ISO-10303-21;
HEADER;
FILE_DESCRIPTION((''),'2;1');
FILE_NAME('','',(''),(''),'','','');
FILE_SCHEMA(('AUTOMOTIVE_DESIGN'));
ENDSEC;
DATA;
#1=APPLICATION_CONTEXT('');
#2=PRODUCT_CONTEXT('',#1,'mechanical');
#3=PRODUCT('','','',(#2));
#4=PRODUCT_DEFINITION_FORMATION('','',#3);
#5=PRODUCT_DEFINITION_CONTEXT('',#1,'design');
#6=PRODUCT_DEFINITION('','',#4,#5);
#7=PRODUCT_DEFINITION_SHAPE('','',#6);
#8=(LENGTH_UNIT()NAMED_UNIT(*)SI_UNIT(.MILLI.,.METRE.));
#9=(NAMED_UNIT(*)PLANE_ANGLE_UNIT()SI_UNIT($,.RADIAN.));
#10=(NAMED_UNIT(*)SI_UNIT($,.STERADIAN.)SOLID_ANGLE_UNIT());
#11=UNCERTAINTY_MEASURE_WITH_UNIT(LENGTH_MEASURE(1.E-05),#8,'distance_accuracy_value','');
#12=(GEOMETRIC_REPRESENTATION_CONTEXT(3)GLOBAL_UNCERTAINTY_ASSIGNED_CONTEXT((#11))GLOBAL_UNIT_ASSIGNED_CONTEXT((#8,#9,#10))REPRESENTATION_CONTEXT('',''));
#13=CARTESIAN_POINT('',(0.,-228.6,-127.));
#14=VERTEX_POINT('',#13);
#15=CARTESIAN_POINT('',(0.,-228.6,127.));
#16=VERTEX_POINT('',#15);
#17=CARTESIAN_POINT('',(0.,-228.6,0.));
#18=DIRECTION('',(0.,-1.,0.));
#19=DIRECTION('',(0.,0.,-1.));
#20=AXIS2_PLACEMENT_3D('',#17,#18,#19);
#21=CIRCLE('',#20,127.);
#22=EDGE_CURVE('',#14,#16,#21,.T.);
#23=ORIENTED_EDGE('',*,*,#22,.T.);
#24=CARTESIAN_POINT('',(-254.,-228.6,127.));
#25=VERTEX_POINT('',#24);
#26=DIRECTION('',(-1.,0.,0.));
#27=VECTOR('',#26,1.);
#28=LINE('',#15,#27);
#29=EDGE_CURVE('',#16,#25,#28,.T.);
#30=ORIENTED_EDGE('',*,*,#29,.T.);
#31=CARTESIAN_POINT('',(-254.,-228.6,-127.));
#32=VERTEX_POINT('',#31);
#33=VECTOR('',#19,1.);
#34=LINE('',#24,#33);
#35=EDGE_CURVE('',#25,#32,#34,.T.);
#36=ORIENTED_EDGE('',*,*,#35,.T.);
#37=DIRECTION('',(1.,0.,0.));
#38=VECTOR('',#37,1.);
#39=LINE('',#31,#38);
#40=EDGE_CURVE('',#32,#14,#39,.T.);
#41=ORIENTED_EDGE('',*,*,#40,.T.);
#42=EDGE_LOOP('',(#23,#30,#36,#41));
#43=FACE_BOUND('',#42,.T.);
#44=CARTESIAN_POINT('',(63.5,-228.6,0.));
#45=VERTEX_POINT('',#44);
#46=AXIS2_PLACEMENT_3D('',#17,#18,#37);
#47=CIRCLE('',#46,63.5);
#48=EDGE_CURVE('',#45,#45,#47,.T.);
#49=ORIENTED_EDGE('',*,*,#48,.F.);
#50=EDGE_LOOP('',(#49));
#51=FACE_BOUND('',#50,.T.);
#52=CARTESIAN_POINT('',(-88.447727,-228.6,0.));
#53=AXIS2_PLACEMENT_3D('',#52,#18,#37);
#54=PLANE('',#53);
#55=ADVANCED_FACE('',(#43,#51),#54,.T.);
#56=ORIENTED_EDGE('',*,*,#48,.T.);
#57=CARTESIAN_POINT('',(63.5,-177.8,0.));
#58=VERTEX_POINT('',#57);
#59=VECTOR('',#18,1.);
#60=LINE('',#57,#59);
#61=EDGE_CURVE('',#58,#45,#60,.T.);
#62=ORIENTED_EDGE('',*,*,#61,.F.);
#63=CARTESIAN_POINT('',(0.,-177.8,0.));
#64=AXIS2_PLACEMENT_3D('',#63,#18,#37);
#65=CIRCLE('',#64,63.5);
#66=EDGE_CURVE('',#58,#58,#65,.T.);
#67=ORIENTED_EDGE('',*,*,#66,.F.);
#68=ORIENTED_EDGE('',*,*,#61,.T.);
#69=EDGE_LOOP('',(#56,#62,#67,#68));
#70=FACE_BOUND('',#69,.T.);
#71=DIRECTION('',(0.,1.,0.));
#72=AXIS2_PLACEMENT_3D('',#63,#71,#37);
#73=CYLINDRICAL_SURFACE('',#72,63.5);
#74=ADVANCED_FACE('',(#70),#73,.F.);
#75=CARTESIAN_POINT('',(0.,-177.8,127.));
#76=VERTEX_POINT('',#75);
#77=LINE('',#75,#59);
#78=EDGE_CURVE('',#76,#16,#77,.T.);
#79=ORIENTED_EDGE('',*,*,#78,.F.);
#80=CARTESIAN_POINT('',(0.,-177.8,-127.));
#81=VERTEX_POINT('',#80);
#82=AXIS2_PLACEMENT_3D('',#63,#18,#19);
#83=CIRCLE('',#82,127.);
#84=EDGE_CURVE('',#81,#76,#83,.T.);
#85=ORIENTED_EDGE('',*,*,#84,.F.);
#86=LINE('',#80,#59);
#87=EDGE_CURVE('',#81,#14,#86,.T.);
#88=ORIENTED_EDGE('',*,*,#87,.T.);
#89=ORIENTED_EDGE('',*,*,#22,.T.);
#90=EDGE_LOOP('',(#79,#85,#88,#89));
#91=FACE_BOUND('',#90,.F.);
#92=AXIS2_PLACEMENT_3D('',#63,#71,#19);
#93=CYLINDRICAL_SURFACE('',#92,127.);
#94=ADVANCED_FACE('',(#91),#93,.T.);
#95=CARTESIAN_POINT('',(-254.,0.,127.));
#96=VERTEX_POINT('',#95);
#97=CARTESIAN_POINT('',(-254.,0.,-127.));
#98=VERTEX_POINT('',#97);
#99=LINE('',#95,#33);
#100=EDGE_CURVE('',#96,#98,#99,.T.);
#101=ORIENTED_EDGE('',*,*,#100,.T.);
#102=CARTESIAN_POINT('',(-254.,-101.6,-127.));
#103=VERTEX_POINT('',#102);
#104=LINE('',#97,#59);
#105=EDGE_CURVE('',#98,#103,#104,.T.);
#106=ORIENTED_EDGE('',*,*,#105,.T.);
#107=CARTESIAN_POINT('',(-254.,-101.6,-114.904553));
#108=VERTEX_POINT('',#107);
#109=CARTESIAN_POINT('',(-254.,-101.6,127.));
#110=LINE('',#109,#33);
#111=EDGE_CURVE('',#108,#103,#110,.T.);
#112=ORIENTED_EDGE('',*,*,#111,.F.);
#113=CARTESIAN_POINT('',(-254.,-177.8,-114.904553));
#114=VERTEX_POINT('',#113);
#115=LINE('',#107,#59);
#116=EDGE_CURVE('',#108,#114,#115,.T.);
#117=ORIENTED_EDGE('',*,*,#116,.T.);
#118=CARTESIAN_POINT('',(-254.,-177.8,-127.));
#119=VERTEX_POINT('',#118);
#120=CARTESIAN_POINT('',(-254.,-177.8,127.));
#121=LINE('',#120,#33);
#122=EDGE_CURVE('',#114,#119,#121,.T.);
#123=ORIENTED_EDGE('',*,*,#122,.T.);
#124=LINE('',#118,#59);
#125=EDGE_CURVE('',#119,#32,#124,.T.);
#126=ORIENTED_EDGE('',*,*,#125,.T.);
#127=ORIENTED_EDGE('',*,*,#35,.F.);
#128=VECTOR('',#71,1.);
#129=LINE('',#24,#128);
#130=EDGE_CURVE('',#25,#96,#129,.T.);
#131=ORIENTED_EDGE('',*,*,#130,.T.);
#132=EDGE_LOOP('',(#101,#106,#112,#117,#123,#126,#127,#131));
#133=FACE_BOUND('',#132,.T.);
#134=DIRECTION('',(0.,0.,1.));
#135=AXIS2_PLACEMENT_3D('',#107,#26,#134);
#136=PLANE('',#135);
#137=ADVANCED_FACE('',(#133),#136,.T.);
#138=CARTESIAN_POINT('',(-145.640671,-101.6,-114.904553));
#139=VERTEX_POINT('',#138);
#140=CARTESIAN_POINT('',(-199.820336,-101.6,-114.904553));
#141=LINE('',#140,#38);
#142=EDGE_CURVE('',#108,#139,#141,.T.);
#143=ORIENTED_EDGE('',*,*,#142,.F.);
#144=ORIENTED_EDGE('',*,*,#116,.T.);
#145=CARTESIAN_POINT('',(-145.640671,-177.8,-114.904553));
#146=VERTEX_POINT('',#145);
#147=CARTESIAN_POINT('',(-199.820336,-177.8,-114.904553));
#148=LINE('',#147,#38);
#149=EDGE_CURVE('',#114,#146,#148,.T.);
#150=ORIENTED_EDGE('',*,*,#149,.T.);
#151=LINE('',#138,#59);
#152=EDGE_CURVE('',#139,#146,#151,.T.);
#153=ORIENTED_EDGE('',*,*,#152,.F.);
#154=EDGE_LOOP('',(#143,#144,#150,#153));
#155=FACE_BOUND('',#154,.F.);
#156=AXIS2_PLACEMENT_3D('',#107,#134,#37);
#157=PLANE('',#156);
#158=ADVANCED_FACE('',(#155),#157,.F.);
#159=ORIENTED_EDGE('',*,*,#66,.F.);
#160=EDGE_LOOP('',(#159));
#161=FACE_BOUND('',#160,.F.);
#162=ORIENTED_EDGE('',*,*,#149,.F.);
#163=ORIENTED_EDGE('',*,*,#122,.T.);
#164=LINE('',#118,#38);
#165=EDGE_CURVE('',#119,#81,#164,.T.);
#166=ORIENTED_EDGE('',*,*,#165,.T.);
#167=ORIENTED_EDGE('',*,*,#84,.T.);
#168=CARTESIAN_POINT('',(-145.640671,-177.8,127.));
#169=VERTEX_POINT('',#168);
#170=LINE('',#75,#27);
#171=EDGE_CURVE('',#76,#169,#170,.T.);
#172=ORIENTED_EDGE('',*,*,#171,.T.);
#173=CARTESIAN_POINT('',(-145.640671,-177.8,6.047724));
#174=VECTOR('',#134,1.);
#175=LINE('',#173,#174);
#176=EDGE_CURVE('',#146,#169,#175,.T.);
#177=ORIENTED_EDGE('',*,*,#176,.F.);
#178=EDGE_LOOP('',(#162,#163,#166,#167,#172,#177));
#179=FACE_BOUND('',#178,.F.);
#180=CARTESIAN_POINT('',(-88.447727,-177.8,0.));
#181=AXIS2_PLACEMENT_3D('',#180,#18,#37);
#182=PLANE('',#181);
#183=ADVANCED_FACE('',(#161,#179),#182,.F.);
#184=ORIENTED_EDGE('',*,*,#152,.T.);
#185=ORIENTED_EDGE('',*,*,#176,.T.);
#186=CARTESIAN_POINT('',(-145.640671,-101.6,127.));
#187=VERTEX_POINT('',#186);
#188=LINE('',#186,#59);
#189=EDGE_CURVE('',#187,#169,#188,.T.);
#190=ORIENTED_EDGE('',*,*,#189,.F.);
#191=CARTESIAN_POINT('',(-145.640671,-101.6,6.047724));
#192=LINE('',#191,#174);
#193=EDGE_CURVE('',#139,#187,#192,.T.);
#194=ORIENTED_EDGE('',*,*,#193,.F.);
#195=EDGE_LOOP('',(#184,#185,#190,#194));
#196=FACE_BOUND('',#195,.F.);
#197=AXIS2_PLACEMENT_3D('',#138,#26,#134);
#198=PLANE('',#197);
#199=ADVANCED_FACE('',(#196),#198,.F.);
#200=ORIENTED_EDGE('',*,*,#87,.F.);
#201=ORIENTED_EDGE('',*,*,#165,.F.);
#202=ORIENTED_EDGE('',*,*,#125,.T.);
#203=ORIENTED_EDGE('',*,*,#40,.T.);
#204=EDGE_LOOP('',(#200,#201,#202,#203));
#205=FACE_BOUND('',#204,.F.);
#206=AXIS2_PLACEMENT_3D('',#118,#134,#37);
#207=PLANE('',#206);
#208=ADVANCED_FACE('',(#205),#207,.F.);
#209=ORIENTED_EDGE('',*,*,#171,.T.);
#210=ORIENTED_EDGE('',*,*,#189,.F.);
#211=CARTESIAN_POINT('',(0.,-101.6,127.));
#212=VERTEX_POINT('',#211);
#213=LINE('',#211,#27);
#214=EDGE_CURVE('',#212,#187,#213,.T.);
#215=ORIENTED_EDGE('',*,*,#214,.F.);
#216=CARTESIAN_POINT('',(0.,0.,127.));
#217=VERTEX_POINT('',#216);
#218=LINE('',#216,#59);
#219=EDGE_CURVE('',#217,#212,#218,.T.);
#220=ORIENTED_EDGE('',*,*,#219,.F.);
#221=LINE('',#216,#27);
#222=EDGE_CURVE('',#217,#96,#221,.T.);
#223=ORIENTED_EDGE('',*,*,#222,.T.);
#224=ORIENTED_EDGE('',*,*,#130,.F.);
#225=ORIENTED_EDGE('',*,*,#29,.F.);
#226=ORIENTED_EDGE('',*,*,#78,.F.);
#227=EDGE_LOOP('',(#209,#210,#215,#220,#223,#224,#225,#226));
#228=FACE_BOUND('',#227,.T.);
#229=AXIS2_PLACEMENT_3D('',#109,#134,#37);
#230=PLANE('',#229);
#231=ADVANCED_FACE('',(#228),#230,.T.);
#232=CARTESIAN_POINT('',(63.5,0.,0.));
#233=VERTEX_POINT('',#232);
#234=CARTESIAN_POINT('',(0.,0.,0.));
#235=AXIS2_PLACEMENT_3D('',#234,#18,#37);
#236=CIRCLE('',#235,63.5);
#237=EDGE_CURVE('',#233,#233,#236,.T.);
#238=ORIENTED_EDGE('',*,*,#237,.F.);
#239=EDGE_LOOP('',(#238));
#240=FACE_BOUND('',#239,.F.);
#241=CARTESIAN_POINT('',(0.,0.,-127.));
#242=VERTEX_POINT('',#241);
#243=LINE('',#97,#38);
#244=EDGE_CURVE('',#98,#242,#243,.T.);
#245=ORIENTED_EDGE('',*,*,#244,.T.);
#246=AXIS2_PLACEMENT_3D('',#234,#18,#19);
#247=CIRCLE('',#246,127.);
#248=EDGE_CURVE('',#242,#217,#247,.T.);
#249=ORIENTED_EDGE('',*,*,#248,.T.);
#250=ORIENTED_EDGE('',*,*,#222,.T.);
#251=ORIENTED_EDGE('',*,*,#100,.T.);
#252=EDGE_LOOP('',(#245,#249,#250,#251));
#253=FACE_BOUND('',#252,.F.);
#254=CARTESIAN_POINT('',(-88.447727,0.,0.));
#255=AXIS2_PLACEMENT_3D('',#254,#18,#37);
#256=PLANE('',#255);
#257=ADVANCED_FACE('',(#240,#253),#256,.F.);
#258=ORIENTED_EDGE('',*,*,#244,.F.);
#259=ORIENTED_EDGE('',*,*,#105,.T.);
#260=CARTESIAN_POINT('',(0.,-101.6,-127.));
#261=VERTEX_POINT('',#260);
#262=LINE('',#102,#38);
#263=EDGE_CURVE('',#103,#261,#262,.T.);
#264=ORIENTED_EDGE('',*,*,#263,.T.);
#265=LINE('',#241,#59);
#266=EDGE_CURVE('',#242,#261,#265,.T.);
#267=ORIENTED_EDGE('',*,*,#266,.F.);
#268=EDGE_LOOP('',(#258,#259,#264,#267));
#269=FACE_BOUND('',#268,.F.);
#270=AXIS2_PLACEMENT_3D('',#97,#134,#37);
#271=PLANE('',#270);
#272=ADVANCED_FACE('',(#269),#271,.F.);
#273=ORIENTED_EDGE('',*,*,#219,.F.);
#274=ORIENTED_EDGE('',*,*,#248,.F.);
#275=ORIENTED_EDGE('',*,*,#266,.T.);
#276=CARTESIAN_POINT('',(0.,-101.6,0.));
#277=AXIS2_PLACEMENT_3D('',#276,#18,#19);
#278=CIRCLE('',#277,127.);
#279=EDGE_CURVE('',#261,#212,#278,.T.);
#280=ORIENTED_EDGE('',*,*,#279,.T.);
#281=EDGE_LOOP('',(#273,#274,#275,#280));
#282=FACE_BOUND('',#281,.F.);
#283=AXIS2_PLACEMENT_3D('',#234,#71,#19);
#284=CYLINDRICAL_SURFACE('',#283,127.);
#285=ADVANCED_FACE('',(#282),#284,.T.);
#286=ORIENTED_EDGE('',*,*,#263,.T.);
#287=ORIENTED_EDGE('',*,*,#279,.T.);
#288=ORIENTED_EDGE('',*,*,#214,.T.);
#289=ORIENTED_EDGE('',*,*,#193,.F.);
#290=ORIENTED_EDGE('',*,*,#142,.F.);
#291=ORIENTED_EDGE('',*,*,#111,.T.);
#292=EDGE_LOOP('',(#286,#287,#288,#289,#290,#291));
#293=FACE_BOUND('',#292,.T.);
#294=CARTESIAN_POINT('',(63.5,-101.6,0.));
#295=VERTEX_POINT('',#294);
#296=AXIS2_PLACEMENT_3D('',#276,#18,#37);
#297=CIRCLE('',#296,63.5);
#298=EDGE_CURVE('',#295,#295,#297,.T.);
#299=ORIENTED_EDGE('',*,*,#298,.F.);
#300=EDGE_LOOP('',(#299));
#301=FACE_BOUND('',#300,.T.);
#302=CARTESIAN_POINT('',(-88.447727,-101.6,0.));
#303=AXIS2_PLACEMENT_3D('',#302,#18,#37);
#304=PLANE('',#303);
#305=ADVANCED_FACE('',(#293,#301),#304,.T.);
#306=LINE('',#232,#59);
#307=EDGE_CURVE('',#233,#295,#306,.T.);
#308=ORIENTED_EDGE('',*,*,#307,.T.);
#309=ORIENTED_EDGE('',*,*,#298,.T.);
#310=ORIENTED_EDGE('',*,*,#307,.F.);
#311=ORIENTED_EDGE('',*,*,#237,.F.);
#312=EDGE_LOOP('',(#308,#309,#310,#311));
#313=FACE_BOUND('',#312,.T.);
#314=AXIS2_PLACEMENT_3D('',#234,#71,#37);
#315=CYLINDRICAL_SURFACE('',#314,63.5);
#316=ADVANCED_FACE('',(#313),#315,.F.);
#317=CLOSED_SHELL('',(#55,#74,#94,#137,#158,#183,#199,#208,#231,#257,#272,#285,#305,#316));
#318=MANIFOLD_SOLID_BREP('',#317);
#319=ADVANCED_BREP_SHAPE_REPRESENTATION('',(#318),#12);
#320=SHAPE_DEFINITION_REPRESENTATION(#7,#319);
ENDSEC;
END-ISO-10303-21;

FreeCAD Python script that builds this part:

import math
import FreeCAD as App
import Part
import Sketcher

V = App.Vector
Q = App.Units.Quantity


def add_polygon(sketch, points):
    """Adds a closed chain of lines whose ends are joined by coincident constraints."""
    first, n = sketch.GeometryCount, len(points)
    for a, b in zip(points, points[1:] + points[:1]):
        sketch.addGeometry(Part.LineSegment(App.Vector(*a, 0), App.Vector(*b, 0)), False)
    for i in range(n):
        sketch.addConstraint(Sketcher.Constraint("Coincident", first + i, 2, first + (i + 1) % n, 1))

doc = App.newDocument("Part")
body = doc.addObject("PartDesign::Body", "Body")

sketch1 = body.newObject("Sketcher::SketchObject", "Sketch")
sketch1.AttachmentSupport = (doc.getObject("XZ_Plane"), [""])
sketch1.MapMode = "FlatFace"
sketch1.addGeometry(Part.LineSegment(V(-254, -127, 0), V(0, -127, 0)), False)
sketch1.addGeometry(Part.ArcOfCircle(Part.Circle(V(0, 0, 0), V(0, 0, 1), 127), math.radians(-90), math.radians(90)), False)
sketch1.addGeometry(Part.LineSegment(V(0, 127, 0), V(-254, 127, 0)), False)
sketch1.addGeometry(Part.LineSegment(V(-254, 127, 0), V(-254, -127, 0)), False)
sketch1.addGeometry(Part.Circle(V(0, 0, 0), V(0, 0, 1), 64), False)
sketch1.addConstraint(Sketcher.Constraint("Tangent", 0, 2, 1, 1))
sketch1.addConstraint(Sketcher.Constraint("Tangent", 1, 2, 2, 1))
sketch1.addConstraint(Sketcher.Constraint("Coincident", 2, 2, 3, 1))
sketch1.addConstraint(Sketcher.Constraint("Coincident", 3, 2, 0, 1))
sketch1.addConstraint(Sketcher.Constraint("Horizontal", 0))
sketch1.addConstraint(Sketcher.Constraint("Horizontal", 2))
sketch1.addConstraint(Sketcher.Constraint("Vertical", 3))
sketch1.addConstraint(Sketcher.Constraint("Coincident", 1, 3, -1, 1))
sketch1.addConstraint(Sketcher.Constraint("Coincident", 4, 3, -1, 1))
sketch1.addConstraint(Sketcher.Constraint("Equal", 2, 3))
sketch1.addConstraint(Sketcher.Constraint("Diameter", 4, Q("5 in")))
sketch1.addConstraint(Sketcher.Constraint("Radius", 1, Q("5 in")))
pad1 = body.newObject("PartDesign::Pad", "Pad")
pad1.Profile = sketch1
pad1.Length = Q("4 in")
body2 = doc.addObject("PartDesign::Body", "Body001")

sketch2 = body2.newObject("Sketcher::SketchObject", "Sketch001")
sketch2.AttachmentSupport = (doc.getObject("XZ_Plane001"), [""])
sketch2.MapMode = "FlatFace"
sketch2.AttachmentOffset = App.Placement(V(0, 0, 7 * 25.4), App.Rotation())
sketch2.addGeometry(Part.LineSegment(V(0, 127, 0), V(-254, 127, 0)), False)
sketch2.addGeometry(Part.LineSegment(V(-254, 127, 0), V(-254, -127, 0)), False)
sketch2.addGeometry(Part.LineSegment(V(-254, -127, 0), V(0, -127, 0)), False)
sketch2.addGeometry(Part.ArcOfCircle(Part.Circle(V(0, 0, 0), V(0, 0, 1), 127), math.radians(-90), math.radians(90)), False)
sketch2.addGeometry(Part.Circle(V(0, 0, 0), V(0, 0, 1), 64), False)
sketch2.addConstraint(Sketcher.Constraint("Coincident", 0, 2, 1, 1))
sketch2.addConstraint(Sketcher.Constraint("Coincident", 1, 2, 2, 1))
sketch2.addConstraint(Sketcher.Constraint("Tangent", 2, 2, 3, 1))
sketch2.addConstraint(Sketcher.Constraint("Tangent", 3, 2, 0, 1))
sketch2.addConstraint(Sketcher.Constraint("Horizontal", 0))
sketch2.addConstraint(Sketcher.Constraint("Vertical", 1))
sketch2.addConstraint(Sketcher.Constraint("Horizontal", 2))
sketch2.addConstraint(Sketcher.Constraint("Coincident", 3, 3, -1, 1))
sketch2.addConstraint(Sketcher.Constraint("Coincident", 4, 3, -1, 1))
sketch2.addConstraint(Sketcher.Constraint("Equal", 2, 1))
sketch2.addConstraint(Sketcher.Constraint("Diameter", 4, Q("5 in")))
sketch2.addConstraint(Sketcher.Constraint("Radius", 3, Q("5 in")))
pad2 = body2.newObject("PartDesign::Pad", "Pad001")
pad2.Profile = sketch2
pad2.Length = Q("2 in")
body.AllowCompound = True
doc.recompute()

boolean = body.newObject("PartDesign::Boolean", "Boolean")
boolean.Type = "Fuse"
boolean.addObjects([body2])

sketch3 = body.newObject("Sketcher::SketchObject", "Sketch002")
sketch3.AttachmentSupport = (doc.getObject("XZ_Plane"), [""])
sketch3.MapMode = "FlatFace"
sketch3.AttachmentOffset = App.Placement(V(0, 0, 4 * 25.4), App.Rotation())
add_polygon(sketch3, [(-254, 127), (-254, -115), (-146, -115), (-146, 127)])
sketch3.addConstraint(Sketcher.Constraint("Vertical", 0))
sketch3.addConstraint(Sketcher.Constraint("Horizontal", 1))
sketch3.addConstraint(Sketcher.Constraint("Vertical", 2))
sketch3.addConstraint(Sketcher.Constraint("Horizontal", 3))
sketch3.addConstraint(Sketcher.Constraint("DistanceX", 0, 2, -1, 1, Q("10 in")))
sketch3.addConstraint(Sketcher.Constraint("DistanceY", -1, 1, 2, 2, Q("5 in")))
sketch3.addConstraint(Sketcher.Constraint("DistanceX", 1, 1, 1, 2, Q("108.359329 mm")))
sketch3.addConstraint(Sketcher.Constraint("DistanceY", 0, 2, 0, 1, Q("241.904553 mm")))
pad3 = body.newObject("PartDesign::Pad", "Pad002")
pad3.Profile = sketch3
pad3.Type = "UpToLast"

doc.recompute()
